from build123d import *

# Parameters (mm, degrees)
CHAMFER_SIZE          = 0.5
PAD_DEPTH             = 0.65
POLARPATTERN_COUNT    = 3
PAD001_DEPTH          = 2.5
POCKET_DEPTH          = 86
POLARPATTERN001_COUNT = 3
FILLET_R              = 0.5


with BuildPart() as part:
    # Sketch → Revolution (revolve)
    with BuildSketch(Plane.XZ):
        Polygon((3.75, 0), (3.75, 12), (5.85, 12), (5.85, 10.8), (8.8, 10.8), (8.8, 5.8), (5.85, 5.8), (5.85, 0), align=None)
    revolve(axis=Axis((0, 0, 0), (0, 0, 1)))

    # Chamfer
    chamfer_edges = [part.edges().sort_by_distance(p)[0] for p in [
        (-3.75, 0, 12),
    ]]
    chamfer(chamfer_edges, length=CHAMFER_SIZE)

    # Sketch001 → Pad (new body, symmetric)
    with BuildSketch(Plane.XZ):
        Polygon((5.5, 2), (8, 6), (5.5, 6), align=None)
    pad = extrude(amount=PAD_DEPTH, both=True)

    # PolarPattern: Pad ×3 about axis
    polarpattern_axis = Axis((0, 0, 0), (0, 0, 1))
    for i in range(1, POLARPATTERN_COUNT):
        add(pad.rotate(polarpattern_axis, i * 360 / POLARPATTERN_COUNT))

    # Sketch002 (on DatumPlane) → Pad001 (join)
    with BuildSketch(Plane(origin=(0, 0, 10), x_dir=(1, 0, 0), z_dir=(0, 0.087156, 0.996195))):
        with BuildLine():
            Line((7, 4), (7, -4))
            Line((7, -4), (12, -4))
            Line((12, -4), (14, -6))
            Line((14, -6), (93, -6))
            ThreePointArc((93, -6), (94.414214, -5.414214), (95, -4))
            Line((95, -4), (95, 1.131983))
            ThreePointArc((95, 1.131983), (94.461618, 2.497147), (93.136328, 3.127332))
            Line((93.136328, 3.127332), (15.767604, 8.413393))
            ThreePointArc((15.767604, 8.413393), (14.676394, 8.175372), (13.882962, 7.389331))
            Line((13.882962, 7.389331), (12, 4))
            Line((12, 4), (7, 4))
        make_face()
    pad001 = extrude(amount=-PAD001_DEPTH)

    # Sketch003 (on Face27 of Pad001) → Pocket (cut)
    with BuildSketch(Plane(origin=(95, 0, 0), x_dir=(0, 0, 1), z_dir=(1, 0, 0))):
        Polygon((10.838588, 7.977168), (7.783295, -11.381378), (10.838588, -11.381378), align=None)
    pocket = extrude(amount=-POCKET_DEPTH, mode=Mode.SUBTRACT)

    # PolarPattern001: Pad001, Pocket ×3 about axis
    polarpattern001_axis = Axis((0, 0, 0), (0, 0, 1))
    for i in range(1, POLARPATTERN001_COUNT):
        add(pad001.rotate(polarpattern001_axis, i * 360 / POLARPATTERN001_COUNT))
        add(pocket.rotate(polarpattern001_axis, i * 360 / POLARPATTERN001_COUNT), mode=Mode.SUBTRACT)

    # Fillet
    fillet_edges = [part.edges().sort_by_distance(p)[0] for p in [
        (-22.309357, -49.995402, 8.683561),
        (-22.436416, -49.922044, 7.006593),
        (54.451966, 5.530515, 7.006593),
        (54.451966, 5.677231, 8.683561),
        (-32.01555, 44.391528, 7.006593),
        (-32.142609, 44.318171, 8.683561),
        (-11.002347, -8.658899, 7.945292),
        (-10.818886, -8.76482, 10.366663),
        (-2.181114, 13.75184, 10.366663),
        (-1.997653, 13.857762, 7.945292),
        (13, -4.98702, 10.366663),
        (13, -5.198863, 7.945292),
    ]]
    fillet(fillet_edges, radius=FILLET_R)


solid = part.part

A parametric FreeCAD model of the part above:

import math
import FreeCAD as App
import Part
import Sketcher
Q = App.Units.Quantity


def edges_at(feature, points):
    """Names of the edges that pass closest to the given points."""
    edges = feature.Shape.Edges
    near = lambda p: min(range(len(edges)), key=lambda i: edges[i].distToShape(Part.Vertex(*p))[0])
    return sorted({f"Edge{near(p) + 1}" for p in points})


def add_polygon(sketch, points):
    """Adds a closed chain of lines whose ends are joined by coincident constraints."""
    first, n = sketch.GeometryCount, len(points)
    for a, b in zip(points, points[1:] + points[:1]):
        sketch.addGeometry(Part.LineSegment(App.Vector(*a, 0), App.Vector(*b, 0)), False)
    for i in range(n):
        sketch.addConstraint(Sketcher.Constraint("Coincident", first + i, 2, first + (i + 1) % n, 1))

doc = App.newDocument("Part")
body = doc.addObject("PartDesign::Body", "Body")

# Sketch on XZ plane
sketch1 = body.newObject("Sketcher::SketchObject", "Sketch")
sketch1.AttachmentSupport = (doc.getObject("XZ_Plane"), [""])
sketch1.MapMode = "FlatFace"
add_polygon(sketch1, [(3.8, 12), (3.8, 0), (5.8, 0), (5.8, 5.8), (8.8, 5.8), (8.8, 10.8), (5.8, 10.8), (5.8, 12)])  # lines 0-7
sketch1.addConstraint([
    Sketcher.Constraint("Vertical", 0),
    Sketcher.Constraint("Horizontal", 1),
    Sketcher.Constraint("Vertical", 2),
    Sketcher.Constraint("Horizontal", 3),
    Sketcher.Constraint("Vertical", 4),
    Sketcher.Constraint("Horizontal", 5),
    Sketcher.Constraint("Vertical", 6),
    Sketcher.Constraint("Horizontal", 7),
    Sketcher.Constraint("PointOnObject", 0, 2, -1),
    Sketcher.Constraint("Vertical", 2, 2, 5, 2),
    Sketcher.Constraint("DistanceY", 0, 2, 0, 1, Q("12 mm")),
    Sketcher.Constraint("DistanceY", 4, 1, 4, 2, Q("5 mm")),
    Sketcher.Constraint("DistanceX", 1, 1, 1, 2, Q("2.1 mm")),
    Sketcher.Constraint("DistanceY", 2, 1, 2, 2, Q("5.8 mm")),
    Sketcher.Constraint("DistanceX", 3, 1, 3, 2, Q("2.95 mm")),
    Sketcher.Constraint("DistanceX", -1, 1, 3, 2, Q("8.8 mm")),
])
revolution = body.newObject("PartDesign::Revolution", "Revolution")
revolution.Profile = sketch1
revolution.ReferenceAxis = (sketch1, ["V_Axis"])
revolution.Angle = 360
doc.recompute()

chamfer = body.newObject("PartDesign::Chamfer", "Chamfer")
chamfer.Base = (revolution, edges_at(revolution, [(-3.75, 0, 12)]))
chamfer.Size = 0.5

# Sketch on XZ plane
sketch2 = body.newObject("Sketcher::SketchObject", "Sketch001")
sketch2.AttachmentSupport = (doc.getObject("XZ_Plane"), [""])
sketch2.MapMode = "FlatFace"
add_polygon(sketch2, [(5.5, 2), (8, 6), (5.5, 6)])  # lines 0-2
sketch2.addConstraint([
    Sketcher.Constraint("Horizontal", 1),
    Sketcher.Constraint("Vertical", 2),
    Sketcher.Constraint("DistanceY", 2, 2, 2, 1, Q("4 mm")),
    Sketcher.Constraint("DistanceX", 1, 2, 1, 1, Q("2.5 mm")),
    Sketcher.Constraint("DistanceX", -1, 1, 0, 2, Q("8 mm")),
    Sketcher.Constraint("DistanceY", -1, 1, 0, 2, Q("6 mm")),
])
pad1 = body.newObject("PartDesign::Pad", "Pad")
pad1.Profile = sketch2
pad1.Length = 1.3
pad1.Midplane = True
doc.recompute()

polarpattern = body.newObject("PartDesign::PolarPattern", "PolarPattern")
polarpattern.Originals = [pad1]
polarpattern.Axis = (doc.getObject("Z_Axis"), [""])
polarpattern.Angle = 360
polarpattern.Occurrences = 3
body.Tip = polarpattern

# Sketch on an angled plane
sketch3 = body.newObject("Sketcher::SketchObject", "Sketch002")
sketch3.Placement = App.Placement(App.Vector(0, 0, 10), App.Rotation(App.Vector(1, 0, 0), App.Vector(0, 0.996194678, -0.087155972), App.Vector(0, 0.087155972, 0.996194678), "ZXY"))
sketch3.addGeometry([
    Part.LineSegment(App.Vector(7, 4, 0), App.Vector(7, -4, 0)),  # 0
    Part.LineSegment(App.Vector(7, -4, 0), App.Vector(12, -4, 0)),  # 1
    Part.LineSegment(App.Vector(12, -4, 0), App.Vector(14, -6, 0)),  # 2
    Part.LineSegment(App.Vector(14, -6, 0), App.Vector(93, -6, 0)),  # 3
    Part.ArcOfCircle(Part.Circle(App.Vector(93, -4, 0), App.Vector(0, 0, 1), 2), math.radians(-90), math.radians(0)),  # 4
    Part.LineSegment(App.Vector(95, -4, 0), App.Vector(95, 1.1, 0)),  # 5
    Part.ArcOfCircle(Part.Circle(App.Vector(93, 1.1, 0), App.Vector(0, 0, 1), 2), math.radians(0), math.radians(86)),  # 6
    Part.LineSegment(App.Vector(93.1, 3.1, 0), App.Vector(15.8, 8.4, 0)),  # 7
    Part.ArcOfCircle(Part.Circle(App.Vector(15.6, 6.4, 0), App.Vector(0, 0, 1), 2), math.radians(86), math.radians(151)),  # 8
    Part.LineSegment(App.Vector(13.9, 7.4, 0), App.Vector(12, 4, 0)),  # 9
    Part.LineSegment(App.Vector(12, 4, 0), App.Vector(7, 4, 0)),  # 10
], False)
sketch3.addConstraint([
    Sketcher.Constraint("Coincident", 0, 2, 1, 1),
    Sketcher.Constraint("Coincident", 1, 2, 2, 1),
    Sketcher.Constraint("Coincident", 2, 2, 3, 1),
    Sketcher.Constraint("Tangent", 3, 2, 4, 1),
    Sketcher.Constraint("Tangent", 4, 2, 5, 1),
    Sketcher.Constraint("Tangent", 5, 2, 6, 1),
    Sketcher.Constraint("Tangent", 6, 2, 7, 1),
    Sketcher.Constraint("Tangent", 7, 2, 8, 1),
    Sketcher.Constraint("Tangent", 8, 2, 9, 1),
    Sketcher.Constraint("Coincident", 9, 2, 10, 1),
    Sketcher.Constraint("Coincident", 10, 2, 0, 1),
    Sketcher.Constraint("Vertical", 0),
    Sketcher.Constraint("Horizontal", 1),
    Sketcher.Constraint("Horizontal", 3),
    Sketcher.Constraint("Vertical", 5),
    Sketcher.Constraint("Horizontal", 10),
    Sketcher.Constraint("Equal", 6, 8),
    Sketcher.Constraint("Symmetric", 1, 2, 9, 2, -1),
    Sketcher.Constraint("Horizontal", 4, 3, 0, 2),
    Sketcher.Constraint("Vertical", 6, 3, 3, 2),
    Sketcher.Constraint("Radius", 4, Q("1.999999 mm")),
    Sketcher.Constraint("DistanceX", 1, 1, 1, 2, Q("5 mm")),
    Sketcher.Constraint("DistanceX", 3, 1, 3, 2, Q("79 mm")),
    Sketcher.Constraint("DistanceY", 0, 2, 0, 1, Q("8 mm")),
    Sketcher.Constraint("Angle", 2, Q("-45 deg")),
    Sketcher.Constraint("DistanceX", -1, 1, 4, 3, Q("93.000001 mm")),
    Sketcher.Constraint("DistanceY", 5, 1, 5, 2, Q("5.131983 mm")),
    Sketcher.Constraint("DistanceX", -1, 1, 8, 2, Q("13.882962 mm")),
    Sketcher.Constraint("DistanceY", -1, 1, 8, 2, Q("7.389331 mm")),
])
pad2 = body.newObject("PartDesign::Pad", "Pad001")
pad2.Profile = sketch3
pad2.Length = 2.5
pad2.Reversed = True

# Sketch on YZ plane
sketch4 = body.newObject("Sketcher::SketchObject", "Sketch003")
sketch4.AttachmentSupport = (doc.getObject("YZ_Plane"), [""])
sketch4.MapMode = "FlatFace"
sketch4.AttachmentOffset = App.Placement(App.Vector(0, 0, 95), App.Rotation())
add_polygon(sketch4, [(-8, 10.8), (11.4, 7.8), (11.4, 10.8)])  # lines 0-2
sketch4.addConstraint([
    Sketcher.Constraint("Vertical", 1),
    Sketcher.Constraint("Horizontal", 2),
    Sketcher.Constraint("DistanceX", 2, 2, 2, 1, Q("19.358546 mm")),
    Sketcher.Constraint("DistanceY", 1, 1, 1, 2, Q("3.055293 mm")),
    Sketcher.Constraint("DistanceX", -1, 1, 0, 2, Q("11.381378 mm")),
    Sketcher.Constraint("DistanceY", -1, 1, 0, 2, Q("7.783295 mm")),
])
pocket1 = body.newObject("PartDesign::Pocket", "Pocket")
pocket1.Profile = sketch4
pocket1.Length = 86
doc.recompute()

polarpattern2 = body.newObject("PartDesign::PolarPattern", "PolarPattern001")
polarpattern2.Originals = [pad2, pocket1]
polarpattern2.Axis = (doc.getObject("Z_Axis"), [""])
polarpattern2.Angle = 360
polarpattern2.Occurrences = 3
body.Tip = polarpattern2
doc.recompute()

fillet = body.newObject("PartDesign::Fillet", "Fillet")
fillet.Base = (polarpattern2, edges_at(polarpattern2, [
    (-22.309, -49.995, 8.684),
    (-22.436, -49.922, 7.007),
    (54.452, 5.531, 7.007),
    (54.452, 5.677, 8.684),
    (-32.016, 44.392, 7.007),
    (-32.143, 44.318, 8.684),
    (-11.002, -8.659, 7.945),
    (-10.819, -8.765, 10.367),
    (-2.181, 13.752, 10.367),
    (-1.998, 13.858, 7.945),
    (13, -4.987, 10.367),
    (13, -5.199, 7.945),
]))
fillet.Radius = 0.5

doc.recompute()
